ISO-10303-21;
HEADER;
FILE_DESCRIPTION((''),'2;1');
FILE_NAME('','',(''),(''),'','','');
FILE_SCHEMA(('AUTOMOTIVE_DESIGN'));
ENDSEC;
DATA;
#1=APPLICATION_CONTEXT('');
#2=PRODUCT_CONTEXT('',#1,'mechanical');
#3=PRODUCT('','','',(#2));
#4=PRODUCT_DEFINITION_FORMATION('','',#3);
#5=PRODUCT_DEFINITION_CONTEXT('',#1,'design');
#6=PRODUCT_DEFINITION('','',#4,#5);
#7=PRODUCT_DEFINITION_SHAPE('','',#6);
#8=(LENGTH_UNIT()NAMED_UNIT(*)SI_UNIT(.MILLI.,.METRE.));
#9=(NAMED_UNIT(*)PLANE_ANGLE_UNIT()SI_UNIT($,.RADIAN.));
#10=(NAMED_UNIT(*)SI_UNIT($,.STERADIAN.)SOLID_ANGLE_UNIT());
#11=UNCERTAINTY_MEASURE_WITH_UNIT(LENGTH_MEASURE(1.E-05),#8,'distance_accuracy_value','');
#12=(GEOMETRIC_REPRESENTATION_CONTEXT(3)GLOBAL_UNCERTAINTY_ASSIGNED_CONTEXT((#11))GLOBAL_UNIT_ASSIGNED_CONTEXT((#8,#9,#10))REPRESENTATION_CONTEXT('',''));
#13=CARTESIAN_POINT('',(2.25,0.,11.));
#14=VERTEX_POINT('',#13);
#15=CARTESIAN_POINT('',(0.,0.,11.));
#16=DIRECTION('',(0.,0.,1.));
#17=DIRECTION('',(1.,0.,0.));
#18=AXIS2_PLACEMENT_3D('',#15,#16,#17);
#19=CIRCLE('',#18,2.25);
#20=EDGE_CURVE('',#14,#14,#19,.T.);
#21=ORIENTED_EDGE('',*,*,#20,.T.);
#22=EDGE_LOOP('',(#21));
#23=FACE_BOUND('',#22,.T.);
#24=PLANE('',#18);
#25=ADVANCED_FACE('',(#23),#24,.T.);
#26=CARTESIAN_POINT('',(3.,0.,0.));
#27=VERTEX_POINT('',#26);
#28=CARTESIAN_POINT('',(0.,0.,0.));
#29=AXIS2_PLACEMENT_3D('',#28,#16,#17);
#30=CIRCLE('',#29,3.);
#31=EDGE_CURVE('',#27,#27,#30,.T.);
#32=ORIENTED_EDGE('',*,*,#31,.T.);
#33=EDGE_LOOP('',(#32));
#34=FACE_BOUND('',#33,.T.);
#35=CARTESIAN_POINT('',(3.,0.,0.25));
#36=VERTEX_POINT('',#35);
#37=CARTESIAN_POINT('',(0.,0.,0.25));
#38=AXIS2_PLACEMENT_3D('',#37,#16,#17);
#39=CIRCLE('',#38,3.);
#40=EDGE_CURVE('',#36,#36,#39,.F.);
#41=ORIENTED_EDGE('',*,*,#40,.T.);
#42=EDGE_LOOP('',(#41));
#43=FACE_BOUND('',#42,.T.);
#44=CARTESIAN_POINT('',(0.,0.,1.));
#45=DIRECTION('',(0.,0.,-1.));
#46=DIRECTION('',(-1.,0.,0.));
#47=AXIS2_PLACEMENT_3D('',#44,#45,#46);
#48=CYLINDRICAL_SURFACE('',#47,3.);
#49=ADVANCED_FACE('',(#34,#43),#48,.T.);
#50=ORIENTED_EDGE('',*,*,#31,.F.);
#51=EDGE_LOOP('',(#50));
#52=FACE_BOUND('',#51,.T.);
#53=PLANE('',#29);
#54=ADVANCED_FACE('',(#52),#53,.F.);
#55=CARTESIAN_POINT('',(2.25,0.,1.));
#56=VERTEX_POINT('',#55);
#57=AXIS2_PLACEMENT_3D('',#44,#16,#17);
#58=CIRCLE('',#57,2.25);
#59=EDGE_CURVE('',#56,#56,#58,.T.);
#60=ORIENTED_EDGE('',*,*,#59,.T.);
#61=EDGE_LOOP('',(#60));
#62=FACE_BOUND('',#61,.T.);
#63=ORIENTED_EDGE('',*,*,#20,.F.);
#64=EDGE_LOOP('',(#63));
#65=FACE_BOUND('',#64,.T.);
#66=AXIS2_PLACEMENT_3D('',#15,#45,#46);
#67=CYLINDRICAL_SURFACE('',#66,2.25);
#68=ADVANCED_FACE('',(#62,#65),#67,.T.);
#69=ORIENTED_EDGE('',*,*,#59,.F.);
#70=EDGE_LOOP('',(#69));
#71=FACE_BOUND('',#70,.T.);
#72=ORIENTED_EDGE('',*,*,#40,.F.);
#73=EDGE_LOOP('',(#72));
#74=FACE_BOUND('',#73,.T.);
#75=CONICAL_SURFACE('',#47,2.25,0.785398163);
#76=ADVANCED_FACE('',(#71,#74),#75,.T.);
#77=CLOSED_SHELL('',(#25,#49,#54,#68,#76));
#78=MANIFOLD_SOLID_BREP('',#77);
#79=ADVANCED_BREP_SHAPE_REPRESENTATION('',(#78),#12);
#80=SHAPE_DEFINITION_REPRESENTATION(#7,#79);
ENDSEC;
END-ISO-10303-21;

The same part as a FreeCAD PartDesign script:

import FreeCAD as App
import Part
import Sketcher
Q = App.Units.Quantity


def edges_at(feature, points):
    """Names of the edges that pass closest to the given points."""
    edges = feature.Shape.Edges
    near = lambda p: min(range(len(edges)), key=lambda i: edges[i].distToShape(Part.Vertex(*p))[0])
    return sorted({f"Edge{near(p) + 1}" for p in points})

doc = App.newDocument("Part")
body = doc.addObject("PartDesign::Body", "Body")

sketch1 = body.newObject("Sketcher::SketchObject", "Sketch")
sketch1.AttachmentSupport = (doc.getObject("XY_Plane"), [""])
sketch1.MapMode = "FlatFace"
sketch1.addGeometry(Part.Circle(App.Vector(0, 0, 0), App.Vector(0, 0, 1), 3), False)
sketch1.addConstraint(Sketcher.Constraint("Coincident", 0, 3, -1, 1))
sketch1.addConstraint(Sketcher.Constraint("Diameter", 0, Q("6 mm")))
pad1 = body.newObject("PartDesign::Pad", "Pad")
pad1.Profile = sketch1
pad1.Length = 1
doc.recompute()

chamfer = body.newObject("PartDesign::Chamfer", "Chamfer")
chamfer.Base = (pad1, edges_at(pad1, [(-3, 0, 1)]))
chamfer.Size = 0.75

sketch2 = body.newObject("Sketcher::SketchObject", "Sketch001")
sketch2.AttachmentSupport = (doc.getObject("XY_Plane"), [""])
sketch2.MapMode = "FlatFace"
sketch2.AttachmentOffset = App.Placement(App.Vector(0, 0, 1), App.Rotation())
sketch2.addGeometry(Part.Circle(App.Vector(0, 0, 0), App.Vector(0, 0, 1), 2.2), False)
sketch2.addConstraint(Sketcher.Constraint("Coincident", 0, 3, -1, 1))
sketch2.addConstraint(Sketcher.Constraint("Diameter", 0, Q("4.5 mm")))
pad2 = body.newObject("PartDesign::Pad", "Pad001")
pad2.Profile = sketch2
pad2.Length = 10

doc.recompute()
